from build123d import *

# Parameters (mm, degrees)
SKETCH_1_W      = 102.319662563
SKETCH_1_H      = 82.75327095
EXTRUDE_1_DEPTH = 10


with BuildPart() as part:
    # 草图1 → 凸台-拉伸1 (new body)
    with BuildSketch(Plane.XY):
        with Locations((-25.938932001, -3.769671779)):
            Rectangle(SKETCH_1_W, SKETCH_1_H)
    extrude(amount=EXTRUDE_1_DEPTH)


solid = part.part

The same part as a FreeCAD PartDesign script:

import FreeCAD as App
import Part
import Sketcher
from FreeCAD import Vector
Q = App.Units.Quantity


def add_polygon(sketch, points):
    """Adds a closed chain of lines whose ends are joined by coincident constraints."""
    first, n = sketch.GeometryCount, len(points)
    for a, b in zip(points, points[1:] + points[:1]):
        sketch.addGeometry(Part.LineSegment(App.Vector(*a, 0), App.Vector(*b, 0)), False)
    for i in range(n):
        sketch.addConstraint(Sketcher.Constraint("Coincident", first + i, 2, first + (i + 1) % n, 1))

doc = App.newDocument("Part")
body = doc.addObject("PartDesign::Body", "Body")

# Sketch on XY plane
sketch1 = doc.addObject("Sketcher::SketchObject", "Sketch")
body.addObject(sketch1)
sketch1.AttachmentSupport = (doc.XY_Plane, [""])
sketch1.MapMode = "FlatFace"
add_polygon(sketch1, [(-77.098763, 37.606964), (-77.098763, -45.146307), (25.220899, -45.146307), (25.220899, 37.606964)])  # lines 0-3
sketch1.addConstraint([
    Sketcher.Constraint("Vertical", 0),
    Sketcher.Constraint("Horizontal", 1),
    Sketcher.Constraint("Vertical", 2),
    Sketcher.Constraint("Horizontal", 3),
    Sketcher.Constraint("DistanceY", 0, 2, 0, 1, Q("82.753271 mm")),
    Sketcher.Constraint("DistanceX", -1, 1, 1, 2, Q("25.220899 mm")),
    Sketcher.Constraint("DistanceX", 1, 1, 1, 2, Q("102.319663 mm")),
    Sketcher.Constraint("DistanceY", 0, 2, -1, 1, Q("45.146307 mm")),
])
pad1 = doc.addObject("PartDesign::Pad", "Pad")
body.addObject(pad1)
pad1.Profile = sketch1
pad1.Length = 10

doc.recompute()
